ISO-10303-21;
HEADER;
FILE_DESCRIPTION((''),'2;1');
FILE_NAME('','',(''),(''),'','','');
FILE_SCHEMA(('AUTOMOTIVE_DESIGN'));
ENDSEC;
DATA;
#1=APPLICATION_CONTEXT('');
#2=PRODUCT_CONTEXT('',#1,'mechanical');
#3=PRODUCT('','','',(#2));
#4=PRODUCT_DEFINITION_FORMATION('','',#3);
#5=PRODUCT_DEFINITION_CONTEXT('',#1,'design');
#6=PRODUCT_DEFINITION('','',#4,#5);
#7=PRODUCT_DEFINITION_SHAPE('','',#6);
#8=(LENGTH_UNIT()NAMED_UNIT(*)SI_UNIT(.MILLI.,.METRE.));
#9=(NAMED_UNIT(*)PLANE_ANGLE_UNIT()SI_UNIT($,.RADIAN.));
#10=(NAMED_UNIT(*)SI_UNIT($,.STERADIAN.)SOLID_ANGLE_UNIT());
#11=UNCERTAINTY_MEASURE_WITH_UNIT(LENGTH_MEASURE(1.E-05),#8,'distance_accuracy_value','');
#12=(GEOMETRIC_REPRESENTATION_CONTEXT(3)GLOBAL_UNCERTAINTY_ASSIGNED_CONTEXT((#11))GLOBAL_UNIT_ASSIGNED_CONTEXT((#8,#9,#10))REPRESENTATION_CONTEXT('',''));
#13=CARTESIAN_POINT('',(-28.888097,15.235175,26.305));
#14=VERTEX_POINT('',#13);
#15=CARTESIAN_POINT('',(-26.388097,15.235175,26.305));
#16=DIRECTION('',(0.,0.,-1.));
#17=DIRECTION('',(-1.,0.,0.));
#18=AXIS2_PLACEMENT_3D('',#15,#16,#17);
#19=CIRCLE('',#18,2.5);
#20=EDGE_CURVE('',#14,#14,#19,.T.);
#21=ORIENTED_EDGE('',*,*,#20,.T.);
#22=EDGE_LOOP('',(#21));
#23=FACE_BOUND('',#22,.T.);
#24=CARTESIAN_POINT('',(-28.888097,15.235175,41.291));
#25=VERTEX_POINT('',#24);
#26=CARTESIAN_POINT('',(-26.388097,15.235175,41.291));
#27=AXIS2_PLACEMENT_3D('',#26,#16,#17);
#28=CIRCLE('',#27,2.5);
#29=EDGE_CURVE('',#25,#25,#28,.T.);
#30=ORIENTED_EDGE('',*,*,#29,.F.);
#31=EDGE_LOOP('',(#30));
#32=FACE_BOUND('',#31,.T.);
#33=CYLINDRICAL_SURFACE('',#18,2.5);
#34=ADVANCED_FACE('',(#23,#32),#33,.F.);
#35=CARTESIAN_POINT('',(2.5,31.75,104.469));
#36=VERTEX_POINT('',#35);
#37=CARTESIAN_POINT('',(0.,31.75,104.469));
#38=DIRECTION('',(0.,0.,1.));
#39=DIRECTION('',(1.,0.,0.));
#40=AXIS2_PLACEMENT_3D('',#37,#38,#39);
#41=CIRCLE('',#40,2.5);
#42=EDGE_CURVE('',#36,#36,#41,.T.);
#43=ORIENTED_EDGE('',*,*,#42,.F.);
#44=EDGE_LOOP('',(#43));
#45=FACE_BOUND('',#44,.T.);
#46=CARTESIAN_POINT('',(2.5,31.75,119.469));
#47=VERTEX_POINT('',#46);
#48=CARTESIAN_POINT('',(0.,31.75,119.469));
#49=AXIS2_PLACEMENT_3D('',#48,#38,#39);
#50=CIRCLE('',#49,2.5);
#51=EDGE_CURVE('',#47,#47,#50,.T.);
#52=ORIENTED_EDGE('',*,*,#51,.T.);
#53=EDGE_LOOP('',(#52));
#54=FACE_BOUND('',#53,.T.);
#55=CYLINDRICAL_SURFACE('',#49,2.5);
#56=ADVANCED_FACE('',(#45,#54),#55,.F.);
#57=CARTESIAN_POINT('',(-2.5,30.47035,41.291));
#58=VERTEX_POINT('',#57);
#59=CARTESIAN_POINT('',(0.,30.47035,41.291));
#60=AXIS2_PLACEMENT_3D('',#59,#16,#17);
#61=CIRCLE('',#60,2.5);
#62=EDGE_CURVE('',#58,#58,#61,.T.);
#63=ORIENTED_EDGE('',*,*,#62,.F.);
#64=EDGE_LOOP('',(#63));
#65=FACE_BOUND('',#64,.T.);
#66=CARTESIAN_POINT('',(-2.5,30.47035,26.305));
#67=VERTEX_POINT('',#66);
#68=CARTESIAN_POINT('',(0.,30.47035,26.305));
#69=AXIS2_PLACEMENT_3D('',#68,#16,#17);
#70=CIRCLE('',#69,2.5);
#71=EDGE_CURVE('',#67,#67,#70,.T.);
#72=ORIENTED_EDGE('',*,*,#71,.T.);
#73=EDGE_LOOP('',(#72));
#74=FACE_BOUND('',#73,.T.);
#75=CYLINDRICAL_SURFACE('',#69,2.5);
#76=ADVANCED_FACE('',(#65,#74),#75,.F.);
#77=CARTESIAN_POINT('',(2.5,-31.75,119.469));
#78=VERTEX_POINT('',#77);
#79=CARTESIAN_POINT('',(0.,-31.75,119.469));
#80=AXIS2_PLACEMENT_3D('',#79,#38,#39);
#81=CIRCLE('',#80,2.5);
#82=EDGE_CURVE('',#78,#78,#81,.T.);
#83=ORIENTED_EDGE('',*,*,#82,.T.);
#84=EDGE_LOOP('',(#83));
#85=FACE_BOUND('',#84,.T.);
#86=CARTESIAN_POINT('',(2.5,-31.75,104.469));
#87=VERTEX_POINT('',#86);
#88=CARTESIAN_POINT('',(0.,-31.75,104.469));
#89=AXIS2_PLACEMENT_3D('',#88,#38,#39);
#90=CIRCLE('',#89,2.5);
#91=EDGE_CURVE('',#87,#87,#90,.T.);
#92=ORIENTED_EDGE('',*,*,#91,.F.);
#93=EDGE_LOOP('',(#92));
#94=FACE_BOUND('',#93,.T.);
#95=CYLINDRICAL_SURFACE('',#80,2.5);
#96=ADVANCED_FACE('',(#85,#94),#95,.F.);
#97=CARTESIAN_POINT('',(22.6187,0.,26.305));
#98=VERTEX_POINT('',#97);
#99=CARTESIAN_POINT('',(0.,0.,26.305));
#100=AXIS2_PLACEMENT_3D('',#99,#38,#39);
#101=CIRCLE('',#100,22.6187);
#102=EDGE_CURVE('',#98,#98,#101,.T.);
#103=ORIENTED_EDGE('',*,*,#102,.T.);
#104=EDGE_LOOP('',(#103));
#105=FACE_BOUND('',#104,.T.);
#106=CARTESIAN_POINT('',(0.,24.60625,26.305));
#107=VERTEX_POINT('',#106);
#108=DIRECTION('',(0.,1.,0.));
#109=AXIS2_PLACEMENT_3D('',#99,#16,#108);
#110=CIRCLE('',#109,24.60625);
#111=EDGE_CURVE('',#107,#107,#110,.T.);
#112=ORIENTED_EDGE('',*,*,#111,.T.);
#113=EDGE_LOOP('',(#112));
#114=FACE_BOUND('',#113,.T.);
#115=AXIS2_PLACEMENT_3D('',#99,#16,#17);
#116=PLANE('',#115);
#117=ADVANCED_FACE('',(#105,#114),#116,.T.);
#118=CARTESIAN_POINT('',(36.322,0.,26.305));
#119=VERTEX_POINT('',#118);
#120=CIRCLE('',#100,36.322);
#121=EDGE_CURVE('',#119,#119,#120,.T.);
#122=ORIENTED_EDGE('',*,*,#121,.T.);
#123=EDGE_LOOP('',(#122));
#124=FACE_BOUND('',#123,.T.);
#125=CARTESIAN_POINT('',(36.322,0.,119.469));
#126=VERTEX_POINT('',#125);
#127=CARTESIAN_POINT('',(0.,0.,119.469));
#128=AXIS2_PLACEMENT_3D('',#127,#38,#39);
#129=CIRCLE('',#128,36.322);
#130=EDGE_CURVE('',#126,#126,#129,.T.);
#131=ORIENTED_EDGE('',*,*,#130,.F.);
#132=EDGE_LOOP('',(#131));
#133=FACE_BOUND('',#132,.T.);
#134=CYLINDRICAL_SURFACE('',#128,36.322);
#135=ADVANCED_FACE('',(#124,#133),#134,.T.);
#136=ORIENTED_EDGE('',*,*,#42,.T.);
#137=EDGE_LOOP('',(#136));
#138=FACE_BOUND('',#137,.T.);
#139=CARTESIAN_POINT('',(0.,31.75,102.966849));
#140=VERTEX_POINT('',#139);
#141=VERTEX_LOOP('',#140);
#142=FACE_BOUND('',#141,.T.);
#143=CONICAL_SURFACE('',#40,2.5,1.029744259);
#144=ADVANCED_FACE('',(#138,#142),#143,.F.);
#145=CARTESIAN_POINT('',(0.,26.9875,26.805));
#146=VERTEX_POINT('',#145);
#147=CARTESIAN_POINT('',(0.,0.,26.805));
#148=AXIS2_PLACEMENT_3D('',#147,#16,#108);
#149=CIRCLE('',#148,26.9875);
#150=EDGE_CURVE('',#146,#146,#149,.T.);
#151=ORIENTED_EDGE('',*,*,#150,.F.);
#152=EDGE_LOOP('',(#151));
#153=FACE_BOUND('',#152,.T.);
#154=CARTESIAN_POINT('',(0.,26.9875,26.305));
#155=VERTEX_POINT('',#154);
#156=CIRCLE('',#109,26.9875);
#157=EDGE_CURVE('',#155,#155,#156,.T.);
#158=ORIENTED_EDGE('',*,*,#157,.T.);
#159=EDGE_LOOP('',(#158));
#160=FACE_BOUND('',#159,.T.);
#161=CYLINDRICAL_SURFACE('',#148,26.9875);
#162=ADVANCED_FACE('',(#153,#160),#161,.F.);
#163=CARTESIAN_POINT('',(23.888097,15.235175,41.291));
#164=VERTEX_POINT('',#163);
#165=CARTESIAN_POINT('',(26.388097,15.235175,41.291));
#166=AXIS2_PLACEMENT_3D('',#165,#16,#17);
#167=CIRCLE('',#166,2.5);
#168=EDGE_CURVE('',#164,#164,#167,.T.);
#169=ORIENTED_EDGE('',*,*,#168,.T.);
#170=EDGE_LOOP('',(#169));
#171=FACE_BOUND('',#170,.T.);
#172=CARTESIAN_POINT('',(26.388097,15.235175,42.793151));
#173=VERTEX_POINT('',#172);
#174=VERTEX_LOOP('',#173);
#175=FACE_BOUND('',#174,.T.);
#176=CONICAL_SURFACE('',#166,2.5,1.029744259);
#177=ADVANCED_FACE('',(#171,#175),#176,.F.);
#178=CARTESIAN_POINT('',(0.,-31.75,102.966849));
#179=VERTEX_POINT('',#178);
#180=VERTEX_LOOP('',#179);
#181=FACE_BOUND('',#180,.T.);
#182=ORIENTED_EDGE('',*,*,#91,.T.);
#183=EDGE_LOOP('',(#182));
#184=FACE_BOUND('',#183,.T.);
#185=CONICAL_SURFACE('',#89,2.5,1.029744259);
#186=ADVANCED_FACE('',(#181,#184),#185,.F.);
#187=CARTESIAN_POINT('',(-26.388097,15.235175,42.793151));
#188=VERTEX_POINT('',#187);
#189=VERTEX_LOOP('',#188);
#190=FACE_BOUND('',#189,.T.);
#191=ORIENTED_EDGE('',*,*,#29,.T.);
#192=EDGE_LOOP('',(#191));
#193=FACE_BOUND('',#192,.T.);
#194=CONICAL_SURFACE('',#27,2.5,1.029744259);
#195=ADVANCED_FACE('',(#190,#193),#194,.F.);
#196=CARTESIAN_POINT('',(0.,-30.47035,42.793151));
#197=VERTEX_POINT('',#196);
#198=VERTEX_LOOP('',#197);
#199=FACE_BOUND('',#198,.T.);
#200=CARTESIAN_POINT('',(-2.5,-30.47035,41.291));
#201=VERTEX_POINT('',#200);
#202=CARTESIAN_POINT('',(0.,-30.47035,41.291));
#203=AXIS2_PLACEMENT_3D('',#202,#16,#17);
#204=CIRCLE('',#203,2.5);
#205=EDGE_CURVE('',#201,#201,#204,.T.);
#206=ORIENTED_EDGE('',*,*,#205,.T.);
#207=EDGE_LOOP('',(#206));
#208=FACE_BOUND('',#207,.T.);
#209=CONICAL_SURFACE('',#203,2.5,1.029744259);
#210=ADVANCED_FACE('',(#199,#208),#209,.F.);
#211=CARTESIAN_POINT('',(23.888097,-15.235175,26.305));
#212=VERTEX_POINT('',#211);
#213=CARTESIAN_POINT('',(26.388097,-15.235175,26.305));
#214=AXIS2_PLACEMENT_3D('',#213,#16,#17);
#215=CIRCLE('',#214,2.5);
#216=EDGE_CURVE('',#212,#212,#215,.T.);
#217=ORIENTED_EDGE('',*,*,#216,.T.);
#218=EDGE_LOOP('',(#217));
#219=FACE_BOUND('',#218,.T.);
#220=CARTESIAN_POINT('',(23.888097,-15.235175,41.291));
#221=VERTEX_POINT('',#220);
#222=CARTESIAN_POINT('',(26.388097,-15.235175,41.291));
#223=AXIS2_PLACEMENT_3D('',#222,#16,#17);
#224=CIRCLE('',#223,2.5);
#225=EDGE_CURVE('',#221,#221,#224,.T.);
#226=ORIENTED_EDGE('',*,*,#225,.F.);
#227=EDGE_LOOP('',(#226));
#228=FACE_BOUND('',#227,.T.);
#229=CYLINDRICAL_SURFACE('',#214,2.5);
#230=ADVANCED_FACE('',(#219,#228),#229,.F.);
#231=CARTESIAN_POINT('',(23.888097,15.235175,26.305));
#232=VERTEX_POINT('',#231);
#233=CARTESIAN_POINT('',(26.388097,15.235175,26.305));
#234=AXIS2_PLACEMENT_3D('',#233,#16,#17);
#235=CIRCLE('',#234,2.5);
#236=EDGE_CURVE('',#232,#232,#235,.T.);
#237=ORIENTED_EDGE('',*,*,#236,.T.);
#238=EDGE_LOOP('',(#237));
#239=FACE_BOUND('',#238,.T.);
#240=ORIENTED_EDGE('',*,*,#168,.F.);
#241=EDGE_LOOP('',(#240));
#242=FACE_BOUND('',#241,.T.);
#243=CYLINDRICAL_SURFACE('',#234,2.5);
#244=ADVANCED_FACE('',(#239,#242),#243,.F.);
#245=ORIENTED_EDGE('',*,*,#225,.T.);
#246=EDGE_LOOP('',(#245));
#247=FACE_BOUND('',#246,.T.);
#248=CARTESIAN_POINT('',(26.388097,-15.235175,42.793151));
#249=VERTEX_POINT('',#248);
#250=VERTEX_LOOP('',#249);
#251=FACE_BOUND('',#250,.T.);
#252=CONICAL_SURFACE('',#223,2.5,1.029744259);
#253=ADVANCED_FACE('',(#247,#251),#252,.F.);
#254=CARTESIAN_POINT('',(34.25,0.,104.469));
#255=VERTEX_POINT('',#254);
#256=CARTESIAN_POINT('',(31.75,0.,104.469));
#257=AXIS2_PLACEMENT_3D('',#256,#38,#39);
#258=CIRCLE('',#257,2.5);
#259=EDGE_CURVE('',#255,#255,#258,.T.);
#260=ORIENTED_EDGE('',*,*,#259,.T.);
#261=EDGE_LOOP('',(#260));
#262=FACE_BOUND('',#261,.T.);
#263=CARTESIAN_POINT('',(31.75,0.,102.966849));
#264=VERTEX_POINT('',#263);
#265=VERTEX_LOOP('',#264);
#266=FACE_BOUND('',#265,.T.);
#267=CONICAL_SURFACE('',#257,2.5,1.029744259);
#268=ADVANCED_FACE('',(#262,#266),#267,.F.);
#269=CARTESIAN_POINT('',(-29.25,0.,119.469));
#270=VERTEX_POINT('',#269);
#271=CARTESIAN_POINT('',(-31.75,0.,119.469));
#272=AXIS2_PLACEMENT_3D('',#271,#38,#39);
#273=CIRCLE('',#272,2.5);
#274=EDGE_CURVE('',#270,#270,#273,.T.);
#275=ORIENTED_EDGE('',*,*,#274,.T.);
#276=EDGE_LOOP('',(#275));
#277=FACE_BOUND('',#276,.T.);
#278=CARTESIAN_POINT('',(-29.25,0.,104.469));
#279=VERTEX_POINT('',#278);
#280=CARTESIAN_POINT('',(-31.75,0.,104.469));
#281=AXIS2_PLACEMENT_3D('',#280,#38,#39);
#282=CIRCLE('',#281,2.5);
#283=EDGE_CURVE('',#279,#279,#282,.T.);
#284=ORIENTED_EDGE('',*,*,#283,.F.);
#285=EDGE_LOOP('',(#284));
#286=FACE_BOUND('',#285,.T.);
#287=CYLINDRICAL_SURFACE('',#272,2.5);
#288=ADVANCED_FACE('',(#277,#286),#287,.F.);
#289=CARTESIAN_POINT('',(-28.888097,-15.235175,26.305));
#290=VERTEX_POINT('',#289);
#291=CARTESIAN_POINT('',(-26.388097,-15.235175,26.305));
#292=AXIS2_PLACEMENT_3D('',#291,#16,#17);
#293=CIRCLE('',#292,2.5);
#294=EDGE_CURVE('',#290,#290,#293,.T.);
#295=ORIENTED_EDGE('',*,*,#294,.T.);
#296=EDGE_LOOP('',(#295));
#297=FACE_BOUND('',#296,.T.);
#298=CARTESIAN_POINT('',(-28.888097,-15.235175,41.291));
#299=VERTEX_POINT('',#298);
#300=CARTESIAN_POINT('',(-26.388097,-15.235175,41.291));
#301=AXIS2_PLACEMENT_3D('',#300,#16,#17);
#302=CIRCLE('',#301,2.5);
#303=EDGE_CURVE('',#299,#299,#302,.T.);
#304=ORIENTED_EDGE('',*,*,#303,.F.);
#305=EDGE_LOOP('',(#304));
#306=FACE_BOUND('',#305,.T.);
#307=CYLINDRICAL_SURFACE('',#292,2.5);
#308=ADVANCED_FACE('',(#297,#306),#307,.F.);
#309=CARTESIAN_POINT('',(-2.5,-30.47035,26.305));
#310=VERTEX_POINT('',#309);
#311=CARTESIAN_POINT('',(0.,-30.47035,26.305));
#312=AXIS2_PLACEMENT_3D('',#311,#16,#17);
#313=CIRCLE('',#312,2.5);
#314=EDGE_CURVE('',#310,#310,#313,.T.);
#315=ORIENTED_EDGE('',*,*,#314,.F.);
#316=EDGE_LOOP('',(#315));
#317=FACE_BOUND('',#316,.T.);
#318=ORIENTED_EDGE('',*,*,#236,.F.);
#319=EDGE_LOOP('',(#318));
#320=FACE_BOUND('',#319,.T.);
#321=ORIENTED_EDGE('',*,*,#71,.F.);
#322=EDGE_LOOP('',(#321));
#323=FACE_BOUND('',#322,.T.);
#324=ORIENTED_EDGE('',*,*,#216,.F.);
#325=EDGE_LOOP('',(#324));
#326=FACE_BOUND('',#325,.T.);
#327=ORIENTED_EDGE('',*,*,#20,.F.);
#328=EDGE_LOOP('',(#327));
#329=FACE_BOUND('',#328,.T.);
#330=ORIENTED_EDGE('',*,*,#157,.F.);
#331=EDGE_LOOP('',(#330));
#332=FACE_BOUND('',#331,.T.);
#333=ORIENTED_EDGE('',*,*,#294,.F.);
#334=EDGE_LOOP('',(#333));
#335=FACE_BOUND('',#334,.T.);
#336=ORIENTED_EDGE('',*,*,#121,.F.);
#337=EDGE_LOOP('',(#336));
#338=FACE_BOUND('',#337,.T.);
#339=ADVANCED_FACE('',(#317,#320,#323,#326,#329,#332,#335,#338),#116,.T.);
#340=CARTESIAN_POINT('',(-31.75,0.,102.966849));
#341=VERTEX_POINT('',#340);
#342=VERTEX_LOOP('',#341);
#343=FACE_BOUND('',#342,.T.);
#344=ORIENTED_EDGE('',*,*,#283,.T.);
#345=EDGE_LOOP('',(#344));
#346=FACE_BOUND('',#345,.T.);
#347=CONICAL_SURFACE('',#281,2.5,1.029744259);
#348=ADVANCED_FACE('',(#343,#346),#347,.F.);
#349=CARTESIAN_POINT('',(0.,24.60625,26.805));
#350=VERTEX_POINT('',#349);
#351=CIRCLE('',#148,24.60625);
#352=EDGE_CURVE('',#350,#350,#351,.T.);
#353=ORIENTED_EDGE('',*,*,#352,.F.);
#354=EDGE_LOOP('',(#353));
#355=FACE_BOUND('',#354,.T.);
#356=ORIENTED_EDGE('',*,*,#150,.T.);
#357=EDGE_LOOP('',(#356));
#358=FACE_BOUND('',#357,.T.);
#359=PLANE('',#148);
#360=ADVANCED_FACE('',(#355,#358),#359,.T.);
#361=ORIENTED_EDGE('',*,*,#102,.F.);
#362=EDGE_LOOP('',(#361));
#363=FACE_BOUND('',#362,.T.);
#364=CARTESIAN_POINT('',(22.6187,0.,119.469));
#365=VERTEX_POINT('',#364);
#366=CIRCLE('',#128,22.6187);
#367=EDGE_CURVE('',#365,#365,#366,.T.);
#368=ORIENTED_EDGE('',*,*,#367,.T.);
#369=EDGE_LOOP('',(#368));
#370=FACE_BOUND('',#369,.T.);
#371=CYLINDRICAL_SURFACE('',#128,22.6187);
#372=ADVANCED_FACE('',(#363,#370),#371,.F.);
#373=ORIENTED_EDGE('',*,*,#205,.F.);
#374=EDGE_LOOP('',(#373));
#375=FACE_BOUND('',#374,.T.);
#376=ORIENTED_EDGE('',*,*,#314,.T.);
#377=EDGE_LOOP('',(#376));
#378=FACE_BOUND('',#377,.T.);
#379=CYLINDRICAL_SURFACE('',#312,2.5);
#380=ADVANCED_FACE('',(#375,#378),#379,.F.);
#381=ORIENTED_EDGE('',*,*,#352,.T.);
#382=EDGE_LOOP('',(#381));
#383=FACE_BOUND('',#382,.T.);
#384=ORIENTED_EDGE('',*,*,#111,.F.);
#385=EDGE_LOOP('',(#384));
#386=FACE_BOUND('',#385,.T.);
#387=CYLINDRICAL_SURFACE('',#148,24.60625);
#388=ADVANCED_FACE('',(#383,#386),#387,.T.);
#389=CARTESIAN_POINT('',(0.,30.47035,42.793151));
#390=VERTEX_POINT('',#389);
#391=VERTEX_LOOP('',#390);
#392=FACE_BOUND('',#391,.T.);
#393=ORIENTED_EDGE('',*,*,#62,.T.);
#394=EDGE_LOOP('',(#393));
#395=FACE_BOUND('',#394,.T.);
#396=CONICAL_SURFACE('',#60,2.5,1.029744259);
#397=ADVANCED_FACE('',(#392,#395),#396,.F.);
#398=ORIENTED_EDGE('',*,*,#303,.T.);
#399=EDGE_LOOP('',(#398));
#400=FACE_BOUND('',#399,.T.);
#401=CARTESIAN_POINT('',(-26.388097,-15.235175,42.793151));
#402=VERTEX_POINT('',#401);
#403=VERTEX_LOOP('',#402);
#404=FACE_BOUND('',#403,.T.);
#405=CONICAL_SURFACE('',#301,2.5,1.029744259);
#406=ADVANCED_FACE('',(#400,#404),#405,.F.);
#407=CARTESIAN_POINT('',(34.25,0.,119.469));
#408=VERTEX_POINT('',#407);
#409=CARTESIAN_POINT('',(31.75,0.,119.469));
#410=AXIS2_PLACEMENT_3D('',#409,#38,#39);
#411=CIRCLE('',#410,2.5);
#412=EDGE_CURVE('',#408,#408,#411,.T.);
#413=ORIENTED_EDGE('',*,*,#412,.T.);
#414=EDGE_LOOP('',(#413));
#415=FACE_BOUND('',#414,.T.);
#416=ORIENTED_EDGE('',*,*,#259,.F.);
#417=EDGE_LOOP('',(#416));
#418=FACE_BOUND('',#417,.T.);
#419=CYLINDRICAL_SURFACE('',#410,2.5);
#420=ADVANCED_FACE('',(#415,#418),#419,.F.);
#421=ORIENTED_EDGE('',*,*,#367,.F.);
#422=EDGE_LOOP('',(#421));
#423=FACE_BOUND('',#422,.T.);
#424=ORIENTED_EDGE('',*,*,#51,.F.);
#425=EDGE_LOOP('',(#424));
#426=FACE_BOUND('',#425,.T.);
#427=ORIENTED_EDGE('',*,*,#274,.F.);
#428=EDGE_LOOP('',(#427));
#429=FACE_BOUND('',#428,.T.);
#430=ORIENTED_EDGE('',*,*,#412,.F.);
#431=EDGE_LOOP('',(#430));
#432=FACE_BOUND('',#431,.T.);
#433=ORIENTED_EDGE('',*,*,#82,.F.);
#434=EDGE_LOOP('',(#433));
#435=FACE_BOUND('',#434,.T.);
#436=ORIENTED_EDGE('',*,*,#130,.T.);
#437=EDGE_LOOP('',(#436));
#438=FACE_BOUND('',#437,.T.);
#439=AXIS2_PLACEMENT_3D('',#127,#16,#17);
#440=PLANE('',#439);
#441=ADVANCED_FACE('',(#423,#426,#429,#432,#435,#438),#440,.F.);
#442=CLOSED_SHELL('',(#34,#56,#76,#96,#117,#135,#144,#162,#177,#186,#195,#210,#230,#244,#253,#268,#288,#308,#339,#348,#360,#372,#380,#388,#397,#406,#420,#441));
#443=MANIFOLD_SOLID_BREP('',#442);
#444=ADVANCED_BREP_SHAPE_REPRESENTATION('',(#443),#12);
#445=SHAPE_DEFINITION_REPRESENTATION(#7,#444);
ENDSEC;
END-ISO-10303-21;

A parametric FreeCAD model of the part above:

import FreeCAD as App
import Part
import Sketcher
Q = App.Units.Quantity


def add_polygon(sketch, points):
    """Adds a closed chain of lines whose ends are joined by coincident constraints."""
    first, n = sketch.GeometryCount, len(points)
    for a, b in zip(points, points[1:] + points[:1]):
        sketch.addGeometry(Part.LineSegment(App.Vector(*a, 0), App.Vector(*b, 0)), False)
    for i in range(n):
        sketch.addConstraint(Sketcher.Constraint("Coincident", first + i, 2, first + (i + 1) % n, 1))

doc = App.newDocument("Part")
body = doc.addObject("PartDesign::Body", "Body")

# Sketch on YZ plane
sketch1 = body.newObject("Sketcher::SketchObject", "Sketch")
sketch1.AttachmentSupport = (doc.getObject("YZ_Plane"), [""])
sketch1.MapMode = "FlatFace"
add_polygon(sketch1, [(36.322, 119.469), (22.6187, 119.469), (22.6187, 26.305), (36.322, 26.305)])  # lines 0-3
sketch1.addConstraint([
    Sketcher.Constraint("Horizontal", 0),
    Sketcher.Constraint("Vertical", 1),
    Sketcher.Constraint("Horizontal", 2),
    Sketcher.Constraint("Vertical", 3),
    Sketcher.Constraint("DistanceY", 1, 2, 1, 1, 93.164),
    Sketcher.Constraint("DistanceX", 0, 2, 0, 1, 13.7033),
    Sketcher.Constraint("DistanceY", -1, 1, 0, 2, 119.469),
    Sketcher.Constraint("DistanceX", -1, 1, 2, 2, 36.322),
])
revolution = body.newObject("PartDesign::Revolution", "Revolution")
revolution.Profile = sketch1
revolution.ReferenceAxis = (sketch1, ["V_Axis"])
revolution.Angle = 360

# Sketch on YZ plane
sketch2 = body.newObject("Sketcher::SketchObject", "Sketch001")
sketch2.AttachmentSupport = (doc.getObject("YZ_Plane"), [""])
sketch2.MapMode = "FlatFace"
add_polygon(sketch2, [(30.47035, 42.793151), (30.47035, 26.305), (32.97035, 26.305), (32.97035, 41.291)])  # lines 0-3
sketch2.addGeometry(Part.LineSegment(App.Vector(30.47035, 26.305, 0), App.Vector(30.47035, 42.793151, 0)), True)  # axis
sketch2.addConstraint([
    Sketcher.Constraint("Vertical", 0),
    Sketcher.Constraint("Horizontal", 1),
    Sketcher.Constraint("Vertical", 2),
    Sketcher.Constraint("Vertical", 4),
    Sketcher.Constraint("Coincident", 4, 1, 0, 2),
    Sketcher.Constraint("Equal", 0, 4),
    Sketcher.Constraint("Angle", 3, Q("149 deg")),
    Sketcher.Constraint("DistanceX", 1, 1, 1, 2, 2.5),
    Sketcher.Constraint("DistanceY", 2, 1, 2, 2, 14.986),
    Sketcher.Constraint("DistanceY", -1, 1, 0, 2, 26.305),
    Sketcher.Constraint("DistanceX", -1, 1, 0, 2, 30.47035),
])
groove = body.newObject("PartDesign::Groove", "Groove")
groove.Profile = sketch2
groove.ReferenceAxis = (sketch2, ["Axis0"])
groove.Angle = 360
doc.recompute()

polarpattern = body.newObject("PartDesign::PolarPattern", "PolarPattern")
polarpattern.Originals = [groove]
polarpattern.Axis = (doc.getObject("Z_Axis"), [""])
polarpattern.Angle = 360
polarpattern.Occurrences = 6
body.Tip = polarpattern

# Sketch on YZ plane
sketch3 = body.newObject("Sketcher::SketchObject", "Sketch002")
sketch3.AttachmentSupport = (doc.getObject("YZ_Plane"), [""])
sketch3.MapMode = "FlatFace"
add_polygon(sketch3, [(31.75, 102.966849), (31.75, 119.469), (29.25, 119.469), (29.25, 104.469)])  # lines 0-3
sketch3.addGeometry(Part.LineSegment(App.Vector(31.75, 119.469, 0), App.Vector(31.75, 102.966849, 0)), True)  # axis
sketch3.addConstraint([
    Sketcher.Constraint("Vertical", 0),
    Sketcher.Constraint("Horizontal", 1),
    Sketcher.Constraint("Vertical", 2),
    Sketcher.Constraint("Vertical", 4),
    Sketcher.Constraint("Coincident", 4, 1, 0, 2),
    Sketcher.Constraint("Equal", 0, 4),
    Sketcher.Constraint("DistanceY", 2, 2, 2, 1, 15.0),
    Sketcher.Constraint("Angle", 3, Q("-31 deg")),
    Sketcher.Constraint("DistanceX", 1, 2, 1, 1, 2.5),
    Sketcher.Constraint("DistanceX", -1, 1, 0, 2, 31.75),
    Sketcher.Constraint("DistanceY", -1, 1, 0, 2, 119.469),
])
groove2 = body.newObject("PartDesign::Groove", "Groove001")
groove2.Profile = sketch3
groove2.ReferenceAxis = (sketch3, ["Axis0"])
groove2.Angle = 360
doc.recompute()

polarpattern2 = body.newObject("PartDesign::PolarPattern", "PolarPattern001")
polarpattern2.Originals = [groove2]
polarpattern2.Axis = (doc.getObject("Z_Axis"), [""])
polarpattern2.Angle = 360
polarpattern2.Occurrences = 4
body.Tip = polarpattern2

# Sketch on XY plane
sketch4 = body.newObject("Sketcher::SketchObject", "Sketch003")
sketch4.AttachmentSupport = (doc.getObject("XY_Plane"), [""])
sketch4.MapMode = "FlatFace"
sketch4.AttachmentOffset = App.Placement(App.Vector(0, 0, 26.305), App.Rotation())
sketch4.addGeometry([
    Part.Circle(App.Vector(0, 0, 0), App.Vector(0, 0, 1), 26.9875),
    Part.Circle(App.Vector(0, 0, 0), App.Vector(0, 0, 1), 24.60625),
], False)
sketch4.addConstraint([
    Sketcher.Constraint("Coincident", 0, 3, -1, 1),
    Sketcher.Constraint("Coincident", 1, 3, -1, 1),
    Sketcher.Constraint("Diameter", 0, 53.975),
    Sketcher.Constraint("Diameter", 1, 49.2125),
])
pocket1 = body.newObject("PartDesign::Pocket", "Pocket")
pocket1.Profile = sketch4
pocket1.Length = 0.5
pocket1.Reversed = True

doc.recompute()
